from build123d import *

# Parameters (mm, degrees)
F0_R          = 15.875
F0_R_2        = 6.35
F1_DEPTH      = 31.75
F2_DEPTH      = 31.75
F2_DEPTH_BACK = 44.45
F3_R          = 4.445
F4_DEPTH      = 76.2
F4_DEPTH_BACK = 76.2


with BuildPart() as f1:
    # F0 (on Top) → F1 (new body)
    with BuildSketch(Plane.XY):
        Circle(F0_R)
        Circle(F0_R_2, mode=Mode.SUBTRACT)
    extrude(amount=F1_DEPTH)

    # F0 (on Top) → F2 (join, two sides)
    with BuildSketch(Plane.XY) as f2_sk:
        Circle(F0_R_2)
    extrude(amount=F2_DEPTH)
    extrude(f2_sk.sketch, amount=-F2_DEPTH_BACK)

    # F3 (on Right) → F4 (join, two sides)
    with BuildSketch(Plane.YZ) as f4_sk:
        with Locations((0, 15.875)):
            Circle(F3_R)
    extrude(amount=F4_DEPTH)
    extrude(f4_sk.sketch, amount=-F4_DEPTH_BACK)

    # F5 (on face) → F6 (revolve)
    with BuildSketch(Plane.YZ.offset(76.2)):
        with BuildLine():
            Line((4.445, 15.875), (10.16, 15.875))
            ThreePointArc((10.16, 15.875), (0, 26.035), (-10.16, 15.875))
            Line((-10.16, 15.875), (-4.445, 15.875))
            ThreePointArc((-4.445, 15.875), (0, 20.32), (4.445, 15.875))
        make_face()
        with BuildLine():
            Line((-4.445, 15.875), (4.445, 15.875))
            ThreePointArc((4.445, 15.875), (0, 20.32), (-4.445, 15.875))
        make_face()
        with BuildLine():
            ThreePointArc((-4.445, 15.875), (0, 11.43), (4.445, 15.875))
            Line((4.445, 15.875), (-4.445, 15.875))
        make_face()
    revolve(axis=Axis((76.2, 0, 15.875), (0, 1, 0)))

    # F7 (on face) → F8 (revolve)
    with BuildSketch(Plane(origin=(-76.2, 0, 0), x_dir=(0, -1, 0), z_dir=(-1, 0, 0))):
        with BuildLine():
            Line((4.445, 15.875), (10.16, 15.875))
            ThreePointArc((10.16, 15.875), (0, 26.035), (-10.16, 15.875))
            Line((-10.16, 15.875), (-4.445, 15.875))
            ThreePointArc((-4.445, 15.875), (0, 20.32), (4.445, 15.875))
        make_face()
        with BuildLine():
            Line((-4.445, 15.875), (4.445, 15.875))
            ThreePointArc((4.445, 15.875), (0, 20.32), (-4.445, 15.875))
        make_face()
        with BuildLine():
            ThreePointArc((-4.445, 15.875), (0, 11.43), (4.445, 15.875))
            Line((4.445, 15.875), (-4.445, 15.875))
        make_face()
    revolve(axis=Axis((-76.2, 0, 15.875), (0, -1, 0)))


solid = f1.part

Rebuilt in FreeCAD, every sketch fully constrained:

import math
import FreeCAD as App
import Part
import Sketcher
from FreeCAD import Vector
Q = App.Units.Quantity

doc = App.newDocument("Part")
body = doc.addObject("PartDesign::Body", "Body")

# Sketch on XY plane
sketch1 = body.newObject("Sketcher::SketchObject", "Sketch")
sketch1.AttachmentSupport = (doc.getObject("XY_Plane"), [""])
sketch1.MapMode = "FlatFace"
sketch1.addGeometry(Part.Circle(Vector(0, 0, 0), Vector(0, 0, 1), 16), False)
sketch1.addGeometry(Part.Circle(Vector(0, 0, 0), Vector(0, 0, 1), 6), False)
sketch1.addConstraint(Sketcher.Constraint("Coincident", 0, 3, -1, 1))
sketch1.addConstraint(Sketcher.Constraint("Coincident", 1, 3, -1, 1))
sketch1.addConstraint(Sketcher.Constraint("Diameter", 1, Q("0.5 in")))
sketch1.addConstraint(Sketcher.Constraint("Diameter", 0, Q("1.25 in")))
pad1 = body.newObject("PartDesign::Pad", "Pad")
pad1.Profile = sketch1
pad1.Length = Q("1.25 in")

# Sketch on XY plane
sketch2 = body.newObject("Sketcher::SketchObject", "Sketch001")
sketch2.AttachmentSupport = (doc.getObject("XY_Plane"), [""])
sketch2.MapMode = "FlatFace"
sketch2.addGeometry(Part.Circle(Vector(0, 0, 0), Vector(0, 0, 1), 6), False)
sketch2.addConstraint(Sketcher.Constraint("Coincident", 0, 3, -1, 1))
sketch2.addConstraint(Sketcher.Constraint("Diameter", 0, Q("0.5 in")))
pad2 = body.newObject("PartDesign::Pad", "Pad001")
pad2.Profile = sketch2
pad2.Type = "TwoLengths"
pad2.Length = Q("1.25 in")
pad2.Length2 = Q("1.75 in")

# Sketch on YZ plane
sketch3 = body.newObject("Sketcher::SketchObject", "Sketch002")
sketch3.AttachmentSupport = (doc.getObject("YZ_Plane"), [""])
sketch3.MapMode = "FlatFace"
sketch3.addGeometry(Part.Circle(Vector(0, 15.9, 0), Vector(0, 0, 1), 4.4), False)
sketch3.addConstraint(Sketcher.Constraint("PointOnObject", 0, 3, -2))
sketch3.addConstraint(Sketcher.Constraint("Diameter", 0, Q("0.35 in")))
sketch3.addConstraint(Sketcher.Constraint("DistanceY", -1, 1, 0, 3, Q("0.625 in")))
pad3 = body.newObject("PartDesign::Pad", "Pad002")
pad3.Profile = sketch3
pad3.Type = "TwoLengths"
pad3.Length = Q("3 in")
pad3.Length2 = Q("3 in")

# Sketch on YZ plane
sketch4 = body.newObject("Sketcher::SketchObject", "Sketch003")
sketch4.AttachmentSupport = (doc.getObject("YZ_Plane"), [""])
sketch4.MapMode = "FlatFace"
sketch4.AttachmentOffset = App.Placement(Vector(0, 0, 3 * 25.4), App.Rotation())
sketch4.addGeometry(Part.ArcOfCircle(Part.Circle(Vector(0, 15.9, 0), Vector(0, 0, 1), 10.2), math.radians(0), math.radians(180)), False)
sketch4.addGeometry(Part.LineSegment(Vector(-10.2, 15.9, 0), Vector(-4.4, 15.9, 0)), False)
sketch4.addGeometry(Part.ArcOfCircle(Part.Circle(Vector(0, 15.9, 0), Vector(0, 0, 1), 4.4), math.radians(180), math.radians(360)), False)
sketch4.addGeometry(Part.LineSegment(Vector(4.4, 15.9, 0), Vector(10.2, 15.9, 0)), False)
sketch4.addGeometry(Part.LineSegment(Vector(-10.2, 15.9, 0), Vector(10.2, 15.9, 0)), True)  # axis
sketch4.addConstraint(Sketcher.Constraint("Coincident", 0, 2, 1, 1))
sketch4.addConstraint(Sketcher.Constraint("Coincident", 1, 2, 2, 1))
sketch4.addConstraint(Sketcher.Constraint("Coincident", 2, 2, 3, 1))
sketch4.addConstraint(Sketcher.Constraint("Coincident", 3, 2, 0, 1))
sketch4.addConstraint(Sketcher.Constraint("Horizontal", 1))
sketch4.addConstraint(Sketcher.Constraint("Horizontal", 3))
sketch4.addConstraint(Sketcher.Constraint("Horizontal", 4))
sketch4.addConstraint(Sketcher.Constraint("Coincident", 2, 3, 0, 3))
sketch4.addConstraint(Sketcher.Constraint("Coincident", 4, 1, 0, 2))
sketch4.addConstraint(Sketcher.Constraint("Coincident", 4, 2, 3, 2))
sketch4.addConstraint(Sketcher.Constraint("PointOnObject", 0, 3, -2))
sketch4.addConstraint(Sketcher.Constraint("Horizontal", 2, 3, 0, 2))
sketch4.addConstraint(Sketcher.Constraint("Radius", 0, Q("0.4 in")))
sketch4.addConstraint(Sketcher.Constraint("Radius", 2, Q("0.175 in")))
sketch4.addConstraint(Sketcher.Constraint("DistanceY", -1, 1, 0, 3, Q("0.625 in")))
revolution = body.newObject("PartDesign::Revolution", "Revolution")
revolution.Profile = sketch4
revolution.ReferenceAxis = (sketch4, ["Axis0"])
revolution.Angle = 360

# Sketch on YZ plane
sketch5 = body.newObject("Sketcher::SketchObject", "Sketch004")
sketch5.AttachmentSupport = (doc.getObject("YZ_Plane"), [""])
sketch5.MapMode = "FlatFace"
sketch5.AttachmentOffset = App.Placement(Vector(0, 0, -3 * 25.4), App.Rotation())
sketch5.addGeometry(Part.ArcOfCircle(Part.Circle(Vector(0, 15.9, 0), Vector(0, 0, 1), 10.2), math.radians(0), math.radians(180)), False)
sketch5.addGeometry(Part.LineSegment(Vector(10.2, 15.9, 0), Vector(4.4, 15.9, 0)), False)
sketch5.addGeometry(Part.ArcOfCircle(Part.Circle(Vector(0, 15.9, 0), Vector(0, 0, 1), 4.4), math.radians(180), math.radians(360)), False)
sketch5.addGeometry(Part.LineSegment(Vector(-4.4, 15.9, 0), Vector(-10.2, 15.9, 0)), False)
sketch5.addGeometry(Part.LineSegment(Vector(10.2, 15.9, 0), Vector(-10.2, 15.9, 0)), True)  # axis
sketch5.addConstraint(Sketcher.Constraint("Coincident", 0, 1, 1, 1))
sketch5.addConstraint(Sketcher.Constraint("Coincident", 1, 2, 2, 2))
sketch5.addConstraint(Sketcher.Constraint("Coincident", 2, 1, 3, 1))
sketch5.addConstraint(Sketcher.Constraint("Coincident", 3, 2, 0, 2))
sketch5.addConstraint(Sketcher.Constraint("Horizontal", 1))
sketch5.addConstraint(Sketcher.Constraint("Horizontal", 3))
sketch5.addConstraint(Sketcher.Constraint("Horizontal", 4))
sketch5.addConstraint(Sketcher.Constraint("Coincident", 2, 3, 0, 3))
sketch5.addConstraint(Sketcher.Constraint("Coincident", 4, 1, 0, 1))
sketch5.addConstraint(Sketcher.Constraint("Coincident", 4, 2, 3, 2))
sketch5.addConstraint(Sketcher.Constraint("PointOnObject", 0, 3, -2))
sketch5.addConstraint(Sketcher.Constraint("Horizontal", 2, 3, 0, 1))
sketch5.addConstraint(Sketcher.Constraint("Radius", 0, Q("0.4 in")))
sketch5.addConstraint(Sketcher.Constraint("Radius", 2, Q("0.175 in")))
sketch5.addConstraint(Sketcher.Constraint("DistanceY", -1, 1, 0, 3, Q("0.625 in")))
revolution2 = body.newObject("PartDesign::Revolution", "Revolution001")
revolution2.Profile = sketch5
revolution2.ReferenceAxis = (sketch5, ["Axis0"])
revolution2.Angle = 360

doc.recompute()
